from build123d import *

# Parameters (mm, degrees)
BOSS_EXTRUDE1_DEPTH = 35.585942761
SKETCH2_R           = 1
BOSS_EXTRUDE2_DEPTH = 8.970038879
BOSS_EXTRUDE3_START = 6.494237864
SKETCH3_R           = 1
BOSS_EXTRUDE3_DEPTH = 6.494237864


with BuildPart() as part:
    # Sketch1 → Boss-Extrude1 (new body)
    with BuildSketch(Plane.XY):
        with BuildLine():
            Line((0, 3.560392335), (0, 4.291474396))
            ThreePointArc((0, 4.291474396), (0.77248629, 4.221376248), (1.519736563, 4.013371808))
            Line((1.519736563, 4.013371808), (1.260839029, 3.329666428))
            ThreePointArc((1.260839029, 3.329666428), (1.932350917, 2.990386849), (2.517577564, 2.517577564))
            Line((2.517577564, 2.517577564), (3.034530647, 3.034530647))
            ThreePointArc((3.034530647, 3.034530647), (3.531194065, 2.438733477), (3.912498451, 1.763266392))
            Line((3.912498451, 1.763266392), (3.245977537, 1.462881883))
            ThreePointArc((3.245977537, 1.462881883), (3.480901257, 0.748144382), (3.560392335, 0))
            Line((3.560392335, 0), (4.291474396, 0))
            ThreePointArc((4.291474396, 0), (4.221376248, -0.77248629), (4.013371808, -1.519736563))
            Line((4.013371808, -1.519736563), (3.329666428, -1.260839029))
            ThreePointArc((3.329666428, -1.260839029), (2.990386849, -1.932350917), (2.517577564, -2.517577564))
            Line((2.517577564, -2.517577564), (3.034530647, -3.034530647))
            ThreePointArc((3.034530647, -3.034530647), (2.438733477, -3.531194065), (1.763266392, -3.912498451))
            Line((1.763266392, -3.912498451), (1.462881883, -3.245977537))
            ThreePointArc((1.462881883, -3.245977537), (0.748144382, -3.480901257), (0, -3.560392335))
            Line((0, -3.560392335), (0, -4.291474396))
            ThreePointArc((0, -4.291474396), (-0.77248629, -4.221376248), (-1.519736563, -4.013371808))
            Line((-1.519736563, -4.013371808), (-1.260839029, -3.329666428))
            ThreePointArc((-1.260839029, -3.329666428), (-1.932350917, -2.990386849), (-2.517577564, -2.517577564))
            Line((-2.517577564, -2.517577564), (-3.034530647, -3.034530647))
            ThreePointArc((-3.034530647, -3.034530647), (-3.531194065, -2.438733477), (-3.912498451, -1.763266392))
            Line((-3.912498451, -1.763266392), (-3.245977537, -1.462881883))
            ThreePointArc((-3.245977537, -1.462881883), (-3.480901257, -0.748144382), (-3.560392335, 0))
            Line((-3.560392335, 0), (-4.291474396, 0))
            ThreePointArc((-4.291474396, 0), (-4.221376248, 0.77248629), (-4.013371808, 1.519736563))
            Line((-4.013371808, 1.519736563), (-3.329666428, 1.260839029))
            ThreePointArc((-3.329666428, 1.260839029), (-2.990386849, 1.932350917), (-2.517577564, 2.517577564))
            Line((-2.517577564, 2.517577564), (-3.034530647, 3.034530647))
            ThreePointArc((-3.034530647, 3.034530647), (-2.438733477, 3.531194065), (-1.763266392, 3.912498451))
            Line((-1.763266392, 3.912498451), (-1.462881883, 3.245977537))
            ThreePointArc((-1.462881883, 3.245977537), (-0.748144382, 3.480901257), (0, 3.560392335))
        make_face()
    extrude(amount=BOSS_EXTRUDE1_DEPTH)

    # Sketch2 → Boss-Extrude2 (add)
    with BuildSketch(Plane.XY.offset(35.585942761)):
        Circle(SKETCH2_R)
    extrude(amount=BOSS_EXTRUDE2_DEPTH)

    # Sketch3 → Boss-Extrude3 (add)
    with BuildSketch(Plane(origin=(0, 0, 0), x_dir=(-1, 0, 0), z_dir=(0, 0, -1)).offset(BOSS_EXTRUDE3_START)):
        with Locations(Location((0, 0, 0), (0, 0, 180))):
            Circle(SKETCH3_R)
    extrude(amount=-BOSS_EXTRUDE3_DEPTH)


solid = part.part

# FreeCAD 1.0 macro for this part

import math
import FreeCAD as App
import Part
import Sketcher
from FreeCAD import Vector

doc = App.newDocument("Part")
body = doc.addObject("PartDesign::Body", "Body")

# Sketch on XY plane
sketch1 = body.newObject("Sketcher::SketchObject", "Sketch")
sketch1.AttachmentSupport = (doc.getObject("XY_Plane"), [""])
sketch1.MapMode = "FlatFace"
sketch1.addGeometry([
    Part.LineSegment(Vector(0, 4.3, 0), Vector(0, 3.6, 0)),  # 0
    Part.ArcOfCircle(Part.Circle(Vector(0, 0, 0), Vector(0, 0, 1), 3.6), math.radians(90), math.radians(114)),  # 1
    Part.LineSegment(Vector(-1.5, 3.2, 0), Vector(-1.8, 3.9, 0)),  # 2
    Part.ArcOfCircle(Part.Circle(Vector(0, 0, 0), Vector(0, 0, 1), 4.3), math.radians(114), math.radians(135)),  # 3
    Part.LineSegment(Vector(-3, 3, 0), Vector(-2.5, 2.5, 0)),  # 4
    Part.ArcOfCircle(Part.Circle(Vector(0, 0, 0), Vector(0, 0, 1), 3.6), math.radians(135), math.radians(159)),  # 5
    Part.LineSegment(Vector(-3.3, 1.3, 0), Vector(-4, 1.5, 0)),  # 6
    Part.ArcOfCircle(Part.Circle(Vector(0, 0, 0), Vector(0, 0, 1), 4.3), math.radians(159), math.radians(180)),  # 7
    Part.LineSegment(Vector(-4.3, 0, 0), Vector(-3.6, 0, 0)),  # 8
    Part.ArcOfCircle(Part.Circle(Vector(0, 0, 0), Vector(0, 0, 1), 3.6), math.radians(-180), math.radians(-156)),  # 9
    Part.LineSegment(Vector(-3.2, -1.5, 0), Vector(-3.9, -1.8, 0)),  # 10
    Part.ArcOfCircle(Part.Circle(Vector(0, 0, 0), Vector(0, 0, 1), 4.3), math.radians(-156), math.radians(-135)),  # 11
    Part.LineSegment(Vector(-3, -3, 0), Vector(-2.5, -2.5, 0)),  # 12
    Part.ArcOfCircle(Part.Circle(Vector(0, 0, 0), Vector(0, 0, 1), 3.6), math.radians(-135), math.radians(-111)),  # 13
    Part.LineSegment(Vector(-1.3, -3.3, 0), Vector(-1.5, -4, 0)),  # 14
    Part.ArcOfCircle(Part.Circle(Vector(0, 0, 0), Vector(0, 0, 1), 4.3), math.radians(-111), math.radians(-90)),  # 15
    Part.LineSegment(Vector(0, -4.3, 0), Vector(0, -3.6, 0)),  # 16
    Part.ArcOfCircle(Part.Circle(Vector(0, 0, 0), Vector(0, 0, 1), 3.6), math.radians(-90), math.radians(-66)),  # 17
    Part.LineSegment(Vector(1.5, -3.2, 0), Vector(1.8, -3.9, 0)),  # 18
    Part.ArcOfCircle(Part.Circle(Vector(0, 0, 0), Vector(0, 0, 1), 4.3), math.radians(-66), math.radians(-45)),  # 19
    Part.LineSegment(Vector(3, -3, 0), Vector(2.5, -2.5, 0)),  # 20
    Part.ArcOfCircle(Part.Circle(Vector(0, 0, 0), Vector(0, 0, 1), 3.6), math.radians(-45), math.radians(-21)),  # 21
    Part.LineSegment(Vector(3.3, -1.3, 0), Vector(4, -1.5, 0)),  # 22
    Part.ArcOfCircle(Part.Circle(Vector(0, 0, 0), Vector(0, 0, 1), 4.3), math.radians(-21), math.radians(0)),  # 23
    Part.LineSegment(Vector(4.3, 0, 0), Vector(3.6, 0, 0)),  # 24
    Part.ArcOfCircle(Part.Circle(Vector(0, 0, 0), Vector(0, 0, 1), 3.6), math.radians(0), math.radians(24)),  # 25
    Part.LineSegment(Vector(3.2, 1.5, 0), Vector(3.9, 1.8, 0)),  # 26
    Part.ArcOfCircle(Part.Circle(Vector(0, 0, 0), Vector(0, 0, 1), 4.3), math.radians(24), math.radians(45)),  # 27
    Part.LineSegment(Vector(3, 3, 0), Vector(2.5, 2.5, 0)),  # 28
    Part.ArcOfCircle(Part.Circle(Vector(0, 0, 0), Vector(0, 0, 1), 3.6), math.radians(45), math.radians(69)),  # 29
    Part.LineSegment(Vector(1.3, 3.3, 0), Vector(1.5, 4, 0)),  # 30
    Part.ArcOfCircle(Part.Circle(Vector(0, 0, 0), Vector(0, 0, 1), 4.3), math.radians(69), math.radians(90)),  # 31
], False)
sketch1.addConstraint([
    Sketcher.Constraint("Coincident", 0, 2, 1, 1),
    Sketcher.Constraint("Coincident", 1, 2, 2, 1),
    Sketcher.Constraint("Coincident", 2, 2, 3, 1),
    Sketcher.Constraint("Coincident", 3, 2, 4, 1),
    Sketcher.Constraint("Coincident", 4, 2, 5, 1),
    Sketcher.Constraint("Coincident", 5, 2, 6, 1),
    Sketcher.Constraint("Coincident", 6, 2, 7, 1),
    Sketcher.Constraint("Coincident", 7, 2, 8, 1),
    Sketcher.Constraint("Coincident", 8, 2, 9, 1),
    Sketcher.Constraint("Coincident", 9, 2, 10, 1),
    Sketcher.Constraint("Coincident", 10, 2, 11, 1),
    Sketcher.Constraint("Coincident", 11, 2, 12, 1),
    Sketcher.Constraint("Coincident", 12, 2, 13, 1),
    Sketcher.Constraint("Coincident", 13, 2, 14, 1),
    Sketcher.Constraint("Coincident", 14, 2, 15, 1),
    Sketcher.Constraint("Coincident", 15, 2, 16, 1),
    Sketcher.Constraint("Coincident", 16, 2, 17, 1),
    Sketcher.Constraint("Coincident", 17, 2, 18, 1),
    Sketcher.Constraint("Coincident", 18, 2, 19, 1),
    Sketcher.Constraint("Coincident", 19, 2, 20, 1),
    Sketcher.Constraint("Coincident", 20, 2, 21, 1),
    Sketcher.Constraint("Coincident", 21, 2, 22, 1),
    Sketcher.Constraint("Coincident", 22, 2, 23, 1),
    Sketcher.Constraint("Coincident", 23, 2, 24, 1),
    Sketcher.Constraint("Coincident", 24, 2, 25, 1),
    Sketcher.Constraint("Coincident", 25, 2, 26, 1),
    Sketcher.Constraint("Coincident", 26, 2, 27, 1),
    Sketcher.Constraint("Coincident", 27, 2, 28, 1),
    Sketcher.Constraint("Coincident", 28, 2, 29, 1),
    Sketcher.Constraint("Coincident", 29, 2, 30, 1),
    Sketcher.Constraint("Coincident", 30, 2, 31, 1),
    Sketcher.Constraint("Coincident", 31, 2, 0, 1),
    Sketcher.Constraint("Vertical", 0),
    Sketcher.Constraint("Horizontal", 8),
    Sketcher.Constraint("Vertical", 16),
    Sketcher.Constraint("Horizontal", 24),
    Sketcher.Constraint("Coincident", 1, 3, -1, 1),
    Sketcher.Constraint("Coincident", 3, 3, -1, 1),
    Sketcher.Constraint("Coincident", 5, 3, -1, 1),
    Sketcher.Constraint("Coincident", 7, 3, -1, 1),
    Sketcher.Constraint("Coincident", 9, 3, -1, 1),
    Sketcher.Constraint("Coincident", 11, 3, -1, 1),
    Sketcher.Constraint("Coincident", 13, 3, -1, 1),
    Sketcher.Constraint("Coincident", 15, 3, -1, 1),
    Sketcher.Constraint("Coincident", 17, 3, -1, 1),
    Sketcher.Constraint("Coincident", 19, 3, -1, 1),
    Sketcher.Constraint("Coincident", 21, 3, -1, 1),
    Sketcher.Constraint("Coincident", 23, 3, -1, 1),
    Sketcher.Constraint("Coincident", 25, 3, -1, 1),
    Sketcher.Constraint("Coincident", 27, 3, -1, 1),
    Sketcher.Constraint("Coincident", 29, 3, -1, 1),
    Sketcher.Constraint("Coincident", 31, 3, -1, 1),
    Sketcher.Constraint("Equal", 1, 5),
    Sketcher.Constraint("Equal", 3, 7),
    Sketcher.Constraint("Equal", 5, 9),
    Sketcher.Constraint("Equal", 7, 11),
    Sketcher.Constraint("Equal", 9, 13),
    Sketcher.Constraint("Equal", 11, 15),
    Sketcher.Constraint("Equal", 13, 17),
    Sketcher.Constraint("Equal", 15, 19),
    Sketcher.Constraint("Equal", 17, 21),
    Sketcher.Constraint("Equal", 19, 23),
    Sketcher.Constraint("Equal", 21, 25),
    Sketcher.Constraint("Equal", 23, 27),
    Sketcher.Constraint("Equal", 25, 29),
    Sketcher.Constraint("Equal", 27, 31),
    Sketcher.Constraint("PointOnObject", 0, 2, -2),
    Sketcher.Constraint("PointOnObject", 7, 2, -1),
    Sketcher.Constraint("PointOnObject", 15, 2, -2),
    Sketcher.Constraint("PointOnObject", 23, 2, -1),
    Sketcher.Constraint("Perpendicular", 2, 10),
    Sketcher.Constraint("Perpendicular", 4, 12),
    Sketcher.Constraint("Perpendicular", 6, 14),
    Sketcher.Constraint("Perpendicular", 10, 18),
    Sketcher.Constraint("Perpendicular", 12, 20),
    Sketcher.Constraint("Perpendicular", 14, 22),
    Sketcher.Constraint("Perpendicular", 18, 26),
    Sketcher.Constraint("Perpendicular", 20, 28),
    Sketcher.Constraint("Perpendicular", 22, 30),
    Sketcher.Constraint("Horizontal", 11, 2, 19, 2),
    Sketcher.Constraint("Horizontal", 12, 2, 20, 2),
    Sketcher.Constraint("Horizontal", 3, 2, 27, 2),
    Sketcher.Constraint("Vertical", 3, 2, 11, 2),
    Sketcher.Constraint("Radius", 1, 3.560392),
    Sketcher.Constraint("Radius", 3, 4.291474),
    Sketcher.Constraint("DistanceY", -1, 1, 2, 2, 3.912498),
    Sketcher.Constraint("DistanceX", 10, 2, -1, 1, 3.912498),
    Sketcher.Constraint("DistanceY", 18, 2, -1, 1, 3.912498),
    Sketcher.Constraint("DistanceX", -1, 1, 26, 2, 3.912498),
    Sketcher.Constraint("DistanceY", 4, 2, 1, 2, 0.7284),
    Sketcher.Constraint("DistanceX", 5, 2, 2, 2, 1.5664),
    Sketcher.Constraint("DistanceX", 9, 2, 12, 2, 0.7284),
    Sketcher.Constraint("DistanceY", 13, 2, 10, 2, 1.5664),
    Sketcher.Constraint("DistanceX", 18, 2, 21, 2, 1.5664),
    Sketcher.Constraint("DistanceX", 6, 2, -1, 1, 4.013372),
    Sketcher.Constraint("DistanceX", -1, 1, 29, 2, 1.260839),
])
pad1 = body.newObject("PartDesign::Pad", "Pad")
pad1.Profile = sketch1
pad1.Length = 35.585943

# Sketch on XY plane
sketch2 = body.newObject("Sketcher::SketchObject", "Sketch001")
sketch2.AttachmentSupport = (doc.getObject("XY_Plane"), [""])
sketch2.MapMode = "FlatFace"
sketch2.AttachmentOffset = App.Placement(Vector(0, 0, 35.585943), App.Rotation())
sketch2.addGeometry(Part.Circle(Vector(0, 0, 0), Vector(0, 0, 1), 1), False)
sketch2.addConstraint([
    Sketcher.Constraint("Coincident", 0, 3, -1, 1),
    Sketcher.Constraint("Diameter", 0, 2.0),
])
pad2 = body.newObject("PartDesign::Pad", "Pad001")
pad2.Profile = sketch2
pad2.Length = 8.970039

# Sketch on XY plane
sketch3 = body.newObject("Sketcher::SketchObject", "Sketch002")
sketch3.AttachmentSupport = (doc.getObject("XY_Plane"), [""])
sketch3.MapMode = "FlatFace"
sketch3.AttachmentOffset = App.Placement(Vector(0, 0, -6.494238), App.Rotation())
sketch3.addGeometry(Part.Circle(Vector(0, 0, 0), Vector(0, 0, 1), 1), False)
sketch3.addConstraint([
    Sketcher.Constraint("Coincident", 0, 3, -1, 1),
    Sketcher.Constraint("Diameter", 0, 2.0),
])
pad3 = body.newObject("PartDesign::Pad", "Pad002")
pad3.Profile = sketch3
pad3.Length = 6.494238

doc.recompute()
